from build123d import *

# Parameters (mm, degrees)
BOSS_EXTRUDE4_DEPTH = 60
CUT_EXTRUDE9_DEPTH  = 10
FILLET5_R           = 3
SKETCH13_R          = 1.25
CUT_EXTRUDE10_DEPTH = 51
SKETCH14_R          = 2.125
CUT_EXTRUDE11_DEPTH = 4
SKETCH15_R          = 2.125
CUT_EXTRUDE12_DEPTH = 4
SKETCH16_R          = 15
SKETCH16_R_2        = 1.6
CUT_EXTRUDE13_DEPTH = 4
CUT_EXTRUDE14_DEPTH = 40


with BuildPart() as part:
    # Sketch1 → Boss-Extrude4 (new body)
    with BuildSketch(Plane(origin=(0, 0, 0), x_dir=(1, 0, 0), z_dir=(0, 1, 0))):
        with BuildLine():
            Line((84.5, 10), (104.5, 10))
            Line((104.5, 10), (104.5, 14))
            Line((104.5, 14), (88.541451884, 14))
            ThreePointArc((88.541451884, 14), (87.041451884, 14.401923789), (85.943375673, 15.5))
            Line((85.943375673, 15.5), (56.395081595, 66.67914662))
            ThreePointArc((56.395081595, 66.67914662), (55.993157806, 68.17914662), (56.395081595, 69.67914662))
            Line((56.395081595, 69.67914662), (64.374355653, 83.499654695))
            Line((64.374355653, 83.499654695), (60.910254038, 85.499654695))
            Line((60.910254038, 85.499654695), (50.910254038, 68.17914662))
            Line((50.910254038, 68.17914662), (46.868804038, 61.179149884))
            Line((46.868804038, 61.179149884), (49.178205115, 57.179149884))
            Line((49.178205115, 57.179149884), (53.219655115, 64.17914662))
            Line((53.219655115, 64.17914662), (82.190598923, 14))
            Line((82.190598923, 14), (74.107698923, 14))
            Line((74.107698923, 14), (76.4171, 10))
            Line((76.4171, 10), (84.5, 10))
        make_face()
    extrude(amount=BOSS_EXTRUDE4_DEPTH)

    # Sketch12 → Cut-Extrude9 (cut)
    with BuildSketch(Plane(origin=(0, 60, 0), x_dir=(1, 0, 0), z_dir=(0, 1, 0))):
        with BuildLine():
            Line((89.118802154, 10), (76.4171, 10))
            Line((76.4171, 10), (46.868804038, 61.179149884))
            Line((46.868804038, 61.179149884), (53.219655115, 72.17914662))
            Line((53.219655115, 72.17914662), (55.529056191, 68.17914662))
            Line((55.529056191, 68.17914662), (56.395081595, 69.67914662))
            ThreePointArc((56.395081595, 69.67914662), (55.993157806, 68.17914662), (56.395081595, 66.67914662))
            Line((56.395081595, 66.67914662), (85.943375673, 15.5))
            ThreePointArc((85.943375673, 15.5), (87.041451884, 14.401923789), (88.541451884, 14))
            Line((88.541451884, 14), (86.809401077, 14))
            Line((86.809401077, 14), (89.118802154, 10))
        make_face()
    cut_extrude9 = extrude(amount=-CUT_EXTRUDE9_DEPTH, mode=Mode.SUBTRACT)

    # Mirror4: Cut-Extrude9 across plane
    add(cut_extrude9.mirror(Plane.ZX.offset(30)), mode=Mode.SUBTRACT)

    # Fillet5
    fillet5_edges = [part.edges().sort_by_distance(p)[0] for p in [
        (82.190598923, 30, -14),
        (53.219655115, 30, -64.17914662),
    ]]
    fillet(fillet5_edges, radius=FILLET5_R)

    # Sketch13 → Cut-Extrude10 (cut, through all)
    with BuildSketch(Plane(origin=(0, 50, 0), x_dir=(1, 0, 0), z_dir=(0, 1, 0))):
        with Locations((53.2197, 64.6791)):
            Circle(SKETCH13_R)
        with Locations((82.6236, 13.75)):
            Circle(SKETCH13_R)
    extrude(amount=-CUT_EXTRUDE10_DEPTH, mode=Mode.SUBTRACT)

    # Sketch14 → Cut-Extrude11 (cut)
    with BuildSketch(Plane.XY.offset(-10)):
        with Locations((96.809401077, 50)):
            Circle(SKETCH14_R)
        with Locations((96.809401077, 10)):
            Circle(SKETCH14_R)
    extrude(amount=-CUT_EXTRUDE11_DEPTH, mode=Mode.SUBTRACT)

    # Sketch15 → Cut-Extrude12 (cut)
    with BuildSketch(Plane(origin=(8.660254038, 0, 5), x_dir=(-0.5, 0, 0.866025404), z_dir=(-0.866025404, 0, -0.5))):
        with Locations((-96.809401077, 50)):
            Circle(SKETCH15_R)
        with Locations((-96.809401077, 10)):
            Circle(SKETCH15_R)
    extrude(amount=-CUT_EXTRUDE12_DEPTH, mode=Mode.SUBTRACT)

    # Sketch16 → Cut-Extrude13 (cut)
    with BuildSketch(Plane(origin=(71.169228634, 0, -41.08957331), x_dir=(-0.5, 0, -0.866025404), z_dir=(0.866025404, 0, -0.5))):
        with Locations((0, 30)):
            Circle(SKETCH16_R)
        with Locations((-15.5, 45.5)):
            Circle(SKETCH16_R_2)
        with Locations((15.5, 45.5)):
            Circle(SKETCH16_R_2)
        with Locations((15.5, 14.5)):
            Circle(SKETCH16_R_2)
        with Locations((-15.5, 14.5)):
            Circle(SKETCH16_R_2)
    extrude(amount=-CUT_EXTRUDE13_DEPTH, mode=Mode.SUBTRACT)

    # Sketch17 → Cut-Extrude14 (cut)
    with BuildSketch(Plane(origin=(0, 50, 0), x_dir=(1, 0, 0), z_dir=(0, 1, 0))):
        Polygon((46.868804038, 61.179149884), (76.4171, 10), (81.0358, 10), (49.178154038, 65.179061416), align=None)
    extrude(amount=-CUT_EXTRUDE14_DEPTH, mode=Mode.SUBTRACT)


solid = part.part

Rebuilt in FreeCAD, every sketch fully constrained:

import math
import FreeCAD as App
import Part
import Sketcher

V = App.Vector
Q = App.Units.Quantity


def edges_at(feature, points):
    """Names of the edges that pass closest to the given points."""
    edges = feature.Shape.Edges
    near = lambda p: min(range(len(edges)), key=lambda i: edges[i].distToShape(Part.Vertex(*p))[0])
    return sorted({f"Edge{near(p) + 1}" for p in points})


def add_polygon(sketch, points):
    """Adds a closed chain of lines whose ends are joined by coincident constraints."""
    first, n = sketch.GeometryCount, len(points)
    for a, b in zip(points, points[1:] + points[:1]):
        sketch.addGeometry(Part.LineSegment(App.Vector(*a, 0), App.Vector(*b, 0)), False)
    for i in range(n):
        sketch.addConstraint(Sketcher.Constraint("Coincident", first + i, 2, first + (i + 1) % n, 1))

doc = App.newDocument("Part")
body = doc.addObject("PartDesign::Body", "Body")

# Sketch on XZ plane
sketch1 = doc.addObject("Sketcher::SketchObject", "Sketch")
body.addObject(sketch1)
sketch1.AttachmentSupport = (doc.XZ_Plane, [""])
sketch1.MapMode = "FlatFace"
sketch1.addGeometry(Part.LineSegment(V(104.5, -10, 0), V(104.5, -14, 0)), False)
sketch1.addGeometry(Part.LineSegment(V(104.5, -14, 0), V(88.5, -14, 0)), False)
sketch1.addGeometry(Part.ArcOfCircle(Part.Circle(V(88.5, -17, 0), V(0, 0, 1), 3), math.radians(90), math.radians(150)), False)
sketch1.addGeometry(Part.LineSegment(V(85.9, -15.5, 0), V(56.4, -66.7, 0)), False)
sketch1.addGeometry(Part.ArcOfCircle(Part.Circle(V(59, -68.2, 0), V(0, 0, 1), 3), math.radians(150), math.radians(210)), False)
sketch1.addGeometry(Part.LineSegment(V(56.4, -69.7, 0), V(64.4, -83.5, 0)), False)
sketch1.addGeometry(Part.LineSegment(V(64.4, -83.5, 0), V(60.9, -85.5, 0)), False)
sketch1.addGeometry(Part.LineSegment(V(60.9, -85.5, 0), V(50.9, -68.2, 0)), False)
sketch1.addGeometry(Part.LineSegment(V(50.9, -68.2, 0), V(46.9, -61.2, 0)), False)
sketch1.addGeometry(Part.LineSegment(V(46.9, -61.2, 0), V(49.2, -57.2, 0)), False)
sketch1.addGeometry(Part.LineSegment(V(49.2, -57.2, 0), V(53.2, -64.2, 0)), False)
sketch1.addGeometry(Part.LineSegment(V(53.2, -64.2, 0), V(82.2, -14, 0)), False)
sketch1.addGeometry(Part.LineSegment(V(82.2, -14, 0), V(74.1, -14, 0)), False)
sketch1.addGeometry(Part.LineSegment(V(74.1, -14, 0), V(76.4, -10, 0)), False)
sketch1.addGeometry(Part.LineSegment(V(76.4, -10, 0), V(104.5, -10, 0)), False)
sketch1.addConstraint(Sketcher.Constraint("Coincident", 0, 2, 1, 1))
sketch1.addConstraint(Sketcher.Constraint("Tangent", 1, 2, 2, 1))
sketch1.addConstraint(Sketcher.Constraint("Tangent", 2, 2, 3, 1))
sketch1.addConstraint(Sketcher.Constraint("Tangent", 3, 2, 4, 1))
sketch1.addConstraint(Sketcher.Constraint("Tangent", 4, 2, 5, 1))
sketch1.addConstraint(Sketcher.Constraint("Coincident", 5, 2, 6, 1))
sketch1.addConstraint(Sketcher.Constraint("Coincident", 6, 2, 7, 1))
sketch1.addConstraint(Sketcher.Constraint("Coincident", 7, 2, 8, 1))
sketch1.addConstraint(Sketcher.Constraint("Coincident", 8, 2, 9, 1))
sketch1.addConstraint(Sketcher.Constraint("Coincident", 9, 2, 10, 1))
sketch1.addConstraint(Sketcher.Constraint("Coincident", 10, 2, 11, 1))
sketch1.addConstraint(Sketcher.Constraint("Coincident", 11, 2, 12, 1))
sketch1.addConstraint(Sketcher.Constraint("Coincident", 12, 2, 13, 1))
sketch1.addConstraint(Sketcher.Constraint("Coincident", 13, 2, 14, 1))
sketch1.addConstraint(Sketcher.Constraint("Coincident", 14, 2, 0, 1))
sketch1.addConstraint(Sketcher.Constraint("Vertical", 0))
sketch1.addConstraint(Sketcher.Constraint("Horizontal", 1))
sketch1.addConstraint(Sketcher.Constraint("Horizontal", 12))
sketch1.addConstraint(Sketcher.Constraint("Horizontal", 14))
sketch1.addConstraint(Sketcher.Constraint("Equal", 2, 4))
sketch1.addConstraint(Sketcher.Constraint("Perpendicular", 5, 6))
sketch1.addConstraint(Sketcher.Constraint("Perpendicular", 6, 7))
sketch1.addConstraint(Sketcher.Constraint("Parallel", 7, 8))
sketch1.addConstraint(Sketcher.Constraint("Parallel", 3, 9))
sketch1.addConstraint(Sketcher.Constraint("Parallel", 8, 10))
sketch1.addConstraint(Sketcher.Constraint("Parallel", 9, 11))
sketch1.addConstraint(Sketcher.Constraint("Parallel", 11, 13))
sketch1.addConstraint(Sketcher.Constraint("Horizontal", 4, 3, 7, 2))
sketch1.addConstraint(Sketcher.Constraint("Horizontal", 1, 2, 11, 2))
sketch1.addConstraint(Sketcher.Constraint("Vertical", 3, 2, 4, 2))
sketch1.addConstraint(Sketcher.Constraint("Equal", 8, 10))
sketch1.addConstraint(Sketcher.Constraint("Equal", 9, 13))
sketch1.addConstraint(Sketcher.Constraint("Radius", 2, Q("3 mm")))
sketch1.addConstraint(Sketcher.Constraint("DistanceY", 0, 2, 0, 1, Q("4 mm")))
sketch1.addConstraint(Sketcher.Constraint("Angle", 3, Q("-120 deg")))
sketch1.addConstraint(Sketcher.Constraint("Distance", 6, Q("4 mm")))
sketch1.addConstraint(Sketcher.Constraint("Distance", 7, Q("20 mm")))
sketch1.addConstraint(Sketcher.Constraint("DistanceY", 2, 3, -1, 1, Q("17 mm")))
sketch1.addConstraint(Sketcher.Constraint("DistanceX", -1, 1, 0, 2, Q("104.5 mm")))
sketch1.addConstraint(Sketcher.Constraint("DistanceX", 12, 2, 12, 1, Q("8.0829 mm")))
sketch1.addConstraint(Sketcher.Constraint("DistanceX", 14, 1, 14, 2, Q("28.0829 mm")))
sketch1.addConstraint(Sketcher.Constraint("Distance", 8, Q("8.0829 mm")))
sketch1.addConstraint(Sketcher.Constraint("Distance", 3, Q("59.096588 mm")))
pad1 = doc.addObject("PartDesign::Pad", "Pad")
body.addObject(pad1)
pad1.Profile = sketch1
pad1.Length = 60
pad1.Reversed = True

# Sketch on XZ plane
sketch2 = doc.addObject("Sketcher::SketchObject", "Sketch001")
body.addObject(sketch2)
sketch2.AttachmentSupport = (doc.XZ_Plane, [""])
sketch2.MapMode = "FlatFace"
sketch2.AttachmentOffset = App.Placement(V(0, 0, -60), App.Rotation())
sketch2.addGeometry(Part.LineSegment(V(76.4, -10, 0), V(89.1, -10, 0)), False)
sketch2.addGeometry(Part.LineSegment(V(89.1, -10, 0), V(86.8, -14, 0)), False)
sketch2.addGeometry(Part.LineSegment(V(86.8, -14, 0), V(88.5, -14, 0)), False)
sketch2.addGeometry(Part.ArcOfCircle(Part.Circle(V(88.5, -17, 0), V(0, 0, 1), 3), math.radians(90), math.radians(150)), False)
sketch2.addGeometry(Part.LineSegment(V(85.9, -15.5, 0), V(56.4, -66.7, 0)), False)
sketch2.addGeometry(Part.ArcOfCircle(Part.Circle(V(59, -68.2, 0), V(0, 0, 1), 3), math.radians(150), math.radians(210)), False)
sketch2.addGeometry(Part.LineSegment(V(56.4, -69.7, 0), V(55.5, -68.2, 0)), False)
sketch2.addGeometry(Part.LineSegment(V(55.5, -68.2, 0), V(53.2, -72.2, 0)), False)
sketch2.addGeometry(Part.LineSegment(V(53.2, -72.2, 0), V(46.9, -61.2, 0)), False)
sketch2.addGeometry(Part.LineSegment(V(46.9, -61.2, 0), V(76.4, -10, 0)), False)
sketch2.addConstraint(Sketcher.Constraint("Coincident", 0, 2, 1, 1))
sketch2.addConstraint(Sketcher.Constraint("Coincident", 1, 2, 2, 1))
sketch2.addConstraint(Sketcher.Constraint("Tangent", 2, 2, 3, 1))
sketch2.addConstraint(Sketcher.Constraint("Tangent", 3, 2, 4, 1))
sketch2.addConstraint(Sketcher.Constraint("Tangent", 4, 2, 5, 1))
sketch2.addConstraint(Sketcher.Constraint("Tangent", 5, 2, 6, 1))
sketch2.addConstraint(Sketcher.Constraint("Coincident", 6, 2, 7, 1))
sketch2.addConstraint(Sketcher.Constraint("Coincident", 7, 2, 8, 1))
sketch2.addConstraint(Sketcher.Constraint("Coincident", 8, 2, 9, 1))
sketch2.addConstraint(Sketcher.Constraint("Coincident", 9, 2, 0, 1))
sketch2.addConstraint(Sketcher.Constraint("Horizontal", 0))
sketch2.addConstraint(Sketcher.Constraint("Horizontal", 2))
sketch2.addConstraint(Sketcher.Constraint("Equal", 3, 5))
sketch2.addConstraint(Sketcher.Constraint("Parallel", 1, 4))
sketch2.addConstraint(Sketcher.Constraint("Parallel", 4, 7))
sketch2.addConstraint(Sketcher.Constraint("Parallel", 6, 8))
sketch2.addConstraint(Sketcher.Constraint("Parallel", 7, 9))
sketch2.addConstraint(Sketcher.Constraint("Horizontal", 5, 3, 6, 2))
sketch2.addConstraint(Sketcher.Constraint("Vertical", 4, 2, 5, 2))
sketch2.addConstraint(Sketcher.Constraint("Equal", 1, 7))
sketch2.addConstraint(Sketcher.Constraint("Radius", 3, Q("3 mm")))
sketch2.addConstraint(Sketcher.Constraint("Angle", 1, Q("-120 deg")))
sketch2.addConstraint(Sketcher.Constraint("DistanceY", 3, 3, -1, 1, Q("17 mm")))
sketch2.addConstraint(Sketcher.Constraint("DistanceY", 0, 2, -1, 1, Q("10 mm")))
sketch2.addConstraint(Sketcher.Constraint("DistanceX", 2, 1, 2, 2, Q("1.732051 mm")))
sketch2.addConstraint(Sketcher.Constraint("DistanceX", -1, 1, 1, 2, Q("86.809401 mm")))
sketch2.addConstraint(Sketcher.Constraint("DistanceX", -1, 1, 9, 2, Q("76.4171 mm")))
sketch2.addConstraint(Sketcher.Constraint("Distance", 4, Q("59.096588 mm")))
pocket1 = doc.addObject("PartDesign::Pocket", "Pocket")
body.addObject(pocket1)
pocket1.Profile = sketch2
pocket1.Length = 10
pocket1.Reversed = True
doc.recompute()

datumplane = doc.addObject("PartDesign::Plane", "DatumPlane")
body.addObject(datumplane)
datumplane.AttachmentSupport = (doc.XZ_Plane, [""])
datumplane.MapMode = "FlatFace"
datumplane.AttachmentOffset = App.Placement(V(0, 0, -30), App.Rotation())
mirrored = doc.addObject("PartDesign::Mirrored", "Mirrored")
body.addObject(mirrored)
mirrored.Originals = [pocket1]
mirrored.MirrorPlane = (datumplane, [""])
body.Tip = mirrored
doc.recompute()

fillet = doc.addObject("PartDesign::Fillet", "Fillet")
body.addObject(fillet)
fillet.Base = (mirrored, edges_at(mirrored, [(82.191, 30, -14), (53.22, 30, -64.179)]))
fillet.Radius = 3

# Sketch on XZ plane
sketch3 = doc.addObject("Sketcher::SketchObject", "Sketch002")
body.addObject(sketch3)
sketch3.AttachmentSupport = (doc.XZ_Plane, [""])
sketch3.MapMode = "FlatFace"
sketch3.AttachmentOffset = App.Placement(V(0, 0, -50), App.Rotation())
sketch3.addGeometry(Part.Circle(V(53.2, -64.7, 0), V(0, 0, 1), 1.2), False)
sketch3.addGeometry(Part.Circle(V(82.6, -13.8, 0), V(0, 0, 1), 1.2), False)
sketch3.addConstraint(Sketcher.Constraint("Equal", 0, 1))
sketch3.addConstraint(Sketcher.Constraint("Diameter", 0, Q("2.5 mm")))
sketch3.addConstraint(Sketcher.Constraint("DistanceY", 1, 3, -1, 1, Q("13.75 mm")))
sketch3.addConstraint(Sketcher.Constraint("DistanceX", -1, 1, 0, 3, Q("53.2197 mm")))
sketch3.addConstraint(Sketcher.Constraint("DistanceY", 0, 3, -1, 1, Q("64.6791 mm")))
sketch3.addConstraint(Sketcher.Constraint("DistanceX", -1, 1, 1, 3, Q("82.6236 mm")))
pocket2 = doc.addObject("PartDesign::Pocket", "Pocket001")
body.addObject(pocket2)
pocket2.Profile = sketch3
pocket2.Type = "ThroughAll"
pocket2.Reversed = True

# Sketch on XY plane
sketch4 = doc.addObject("Sketcher::SketchObject", "Sketch003")
body.addObject(sketch4)
sketch4.AttachmentSupport = (doc.XY_Plane, [""])
sketch4.MapMode = "FlatFace"
sketch4.AttachmentOffset = App.Placement(V(0, 0, -10), App.Rotation())
sketch4.addGeometry(Part.Circle(V(96.8, 50, 0), V(0, 0, 1), 2.1), False)
sketch4.addGeometry(Part.Circle(V(96.8, 10, 0), V(0, 0, 1), 2.1), False)
sketch4.addConstraint(Sketcher.Constraint("Equal", 0, 1))
sketch4.addConstraint(Sketcher.Constraint("Vertical", 0, 3, 1, 3))
sketch4.addConstraint(Sketcher.Constraint("Diameter", 0, Q("4.25 mm")))
sketch4.addConstraint(Sketcher.Constraint("DistanceY", -1, 1, 0, 3, Q("50 mm")))
sketch4.addConstraint(Sketcher.Constraint("DistanceY", -1, 1, 1, 3, Q("10 mm")))
sketch4.addConstraint(Sketcher.Constraint("DistanceX", -1, 1, 0, 3, Q("96.809401 mm")))
pocket3 = doc.addObject("PartDesign::Pocket", "Pocket002")
body.addObject(pocket3)
pocket3.Profile = sketch4
pocket3.Length = 4

# Sketch on an angled plane
sketch5 = doc.addObject("Sketcher::SketchObject", "Sketch004")
body.addObject(sketch5)
sketch5.Placement = App.Placement(V(8.660254, 0, 5), App.Rotation(V(-0.5, 0, 0.866025404), V(0, 1, 0), V(-0.866025404, 0, -0.5), "ZXY"))
sketch5.addGeometry(Part.Circle(V(-96.8, 50, 0), V(0, 0, 1), 2.1), False)
sketch5.addGeometry(Part.Circle(V(-96.8, 10, 0), V(0, 0, 1), 2.1), False)
sketch5.addConstraint(Sketcher.Constraint("Equal", 0, 1))
sketch5.addConstraint(Sketcher.Constraint("Vertical", 0, 3, 1, 3))
sketch5.addConstraint(Sketcher.Constraint("Diameter", 0, Q("4.25 mm")))
sketch5.addConstraint(Sketcher.Constraint("DistanceY", -1, 1, 0, 3, Q("50 mm")))
sketch5.addConstraint(Sketcher.Constraint("DistanceY", -1, 1, 1, 3, Q("10 mm")))
sketch5.addConstraint(Sketcher.Constraint("DistanceX", 0, 3, -1, 1, Q("96.809401 mm")))
pocket4 = doc.addObject("PartDesign::Pocket", "Pocket003")
body.addObject(pocket4)
pocket4.Profile = sketch5
pocket4.Length = 4

# Sketch on an angled plane
sketch6 = doc.addObject("Sketcher::SketchObject", "Sketch005")
body.addObject(sketch6)
sketch6.Placement = App.Placement(V(71.169229, 0, -41.089573), App.Rotation(V(-0.5, 0, -0.866025404), V(0, 1, 0), V(0.866025404, 0, -0.5), "ZXY"))
sketch6.addGeometry(Part.Circle(V(0, 30, 0), V(0, 0, 1), 15), False)
sketch6.addGeometry(Part.Circle(V(-15.5, 45.5, 0), V(0, 0, 1), 1.6), False)
sketch6.addGeometry(Part.Circle(V(15.5, 45.5, 0), V(0, 0, 1), 1.6), False)
sketch6.addGeometry(Part.Circle(V(15.5, 14.5, 0), V(0, 0, 1), 1.6), False)
sketch6.addGeometry(Part.Circle(V(-15.5, 14.5, 0), V(0, 0, 1), 1.6), False)
sketch6.addConstraint(Sketcher.Constraint("Equal", 1, 2))
sketch6.addConstraint(Sketcher.Constraint("Equal", 2, 3))
sketch6.addConstraint(Sketcher.Constraint("Equal", 3, 4))
sketch6.addConstraint(Sketcher.Constraint("Symmetric", 1, 3, 2, 3, -2))
sketch6.addConstraint(Sketcher.Constraint("Symmetric", 3, 3, 4, 3, -2))
sketch6.addConstraint(Sketcher.Constraint("PointOnObject", 0, 3, -2))
sketch6.addConstraint(Sketcher.Constraint("Vertical", 2, 3, 3, 3))
sketch6.addConstraint(Sketcher.Constraint("Diameter", 0, Q("30 mm")))
sketch6.addConstraint(Sketcher.Constraint("Diameter", 1, Q("3.2 mm")))
sketch6.addConstraint(Sketcher.Constraint("DistanceY", -1, 1, 0, 3, Q("30 mm")))
sketch6.addConstraint(Sketcher.Constraint("DistanceX", 1, 3, 2, 3, Q("31 mm")))
sketch6.addConstraint(Sketcher.Constraint("DistanceY", 3, 3, 2, 3, Q("31 mm")))
sketch6.addConstraint(Sketcher.Constraint("DistanceY", -1, 1, 1, 3, Q("45.5 mm")))
pocket5 = doc.addObject("PartDesign::Pocket", "Pocket004")
body.addObject(pocket5)
pocket5.Profile = sketch6
pocket5.Length = 4

# Sketch on XZ plane
sketch7 = doc.addObject("Sketcher::SketchObject", "Sketch006")
body.addObject(sketch7)
sketch7.AttachmentSupport = (doc.XZ_Plane, [""])
sketch7.MapMode = "FlatFace"
sketch7.AttachmentOffset = App.Placement(V(0, 0, -50), App.Rotation())
add_polygon(sketch7, [(46.9, -61.2), (76.4, -10), (81, -10), (49.2, -65.2)])  # lines 0-3
sketch7.addConstraint(Sketcher.Constraint("Horizontal", 1))
sketch7.addConstraint(Sketcher.Constraint("Parallel", 0, 2))
sketch7.addConstraint(Sketcher.Constraint("Angle", 0, Q("60 deg")))
sketch7.addConstraint(Sketcher.Constraint("Angle", 3, Q("120 deg")))
sketch7.addConstraint(Sketcher.Constraint("DistanceY", 0, 2, -1, 1, Q("10 mm")))
sketch7.addConstraint(Sketcher.Constraint("DistanceX", 1, 1, 1, 2, Q("4.6187 mm")))
sketch7.addConstraint(Sketcher.Constraint("DistanceX", -1, 1, 0, 2, Q("76.4171 mm")))
sketch7.addConstraint(Sketcher.Constraint("Distance", 0, Q("59.096592 mm")))
pocket6 = doc.addObject("PartDesign::Pocket", "Pocket005")
body.addObject(pocket6)
pocket6.Profile = sketch7
pocket6.Length = 40
pocket6.Reversed = True

doc.recompute()
